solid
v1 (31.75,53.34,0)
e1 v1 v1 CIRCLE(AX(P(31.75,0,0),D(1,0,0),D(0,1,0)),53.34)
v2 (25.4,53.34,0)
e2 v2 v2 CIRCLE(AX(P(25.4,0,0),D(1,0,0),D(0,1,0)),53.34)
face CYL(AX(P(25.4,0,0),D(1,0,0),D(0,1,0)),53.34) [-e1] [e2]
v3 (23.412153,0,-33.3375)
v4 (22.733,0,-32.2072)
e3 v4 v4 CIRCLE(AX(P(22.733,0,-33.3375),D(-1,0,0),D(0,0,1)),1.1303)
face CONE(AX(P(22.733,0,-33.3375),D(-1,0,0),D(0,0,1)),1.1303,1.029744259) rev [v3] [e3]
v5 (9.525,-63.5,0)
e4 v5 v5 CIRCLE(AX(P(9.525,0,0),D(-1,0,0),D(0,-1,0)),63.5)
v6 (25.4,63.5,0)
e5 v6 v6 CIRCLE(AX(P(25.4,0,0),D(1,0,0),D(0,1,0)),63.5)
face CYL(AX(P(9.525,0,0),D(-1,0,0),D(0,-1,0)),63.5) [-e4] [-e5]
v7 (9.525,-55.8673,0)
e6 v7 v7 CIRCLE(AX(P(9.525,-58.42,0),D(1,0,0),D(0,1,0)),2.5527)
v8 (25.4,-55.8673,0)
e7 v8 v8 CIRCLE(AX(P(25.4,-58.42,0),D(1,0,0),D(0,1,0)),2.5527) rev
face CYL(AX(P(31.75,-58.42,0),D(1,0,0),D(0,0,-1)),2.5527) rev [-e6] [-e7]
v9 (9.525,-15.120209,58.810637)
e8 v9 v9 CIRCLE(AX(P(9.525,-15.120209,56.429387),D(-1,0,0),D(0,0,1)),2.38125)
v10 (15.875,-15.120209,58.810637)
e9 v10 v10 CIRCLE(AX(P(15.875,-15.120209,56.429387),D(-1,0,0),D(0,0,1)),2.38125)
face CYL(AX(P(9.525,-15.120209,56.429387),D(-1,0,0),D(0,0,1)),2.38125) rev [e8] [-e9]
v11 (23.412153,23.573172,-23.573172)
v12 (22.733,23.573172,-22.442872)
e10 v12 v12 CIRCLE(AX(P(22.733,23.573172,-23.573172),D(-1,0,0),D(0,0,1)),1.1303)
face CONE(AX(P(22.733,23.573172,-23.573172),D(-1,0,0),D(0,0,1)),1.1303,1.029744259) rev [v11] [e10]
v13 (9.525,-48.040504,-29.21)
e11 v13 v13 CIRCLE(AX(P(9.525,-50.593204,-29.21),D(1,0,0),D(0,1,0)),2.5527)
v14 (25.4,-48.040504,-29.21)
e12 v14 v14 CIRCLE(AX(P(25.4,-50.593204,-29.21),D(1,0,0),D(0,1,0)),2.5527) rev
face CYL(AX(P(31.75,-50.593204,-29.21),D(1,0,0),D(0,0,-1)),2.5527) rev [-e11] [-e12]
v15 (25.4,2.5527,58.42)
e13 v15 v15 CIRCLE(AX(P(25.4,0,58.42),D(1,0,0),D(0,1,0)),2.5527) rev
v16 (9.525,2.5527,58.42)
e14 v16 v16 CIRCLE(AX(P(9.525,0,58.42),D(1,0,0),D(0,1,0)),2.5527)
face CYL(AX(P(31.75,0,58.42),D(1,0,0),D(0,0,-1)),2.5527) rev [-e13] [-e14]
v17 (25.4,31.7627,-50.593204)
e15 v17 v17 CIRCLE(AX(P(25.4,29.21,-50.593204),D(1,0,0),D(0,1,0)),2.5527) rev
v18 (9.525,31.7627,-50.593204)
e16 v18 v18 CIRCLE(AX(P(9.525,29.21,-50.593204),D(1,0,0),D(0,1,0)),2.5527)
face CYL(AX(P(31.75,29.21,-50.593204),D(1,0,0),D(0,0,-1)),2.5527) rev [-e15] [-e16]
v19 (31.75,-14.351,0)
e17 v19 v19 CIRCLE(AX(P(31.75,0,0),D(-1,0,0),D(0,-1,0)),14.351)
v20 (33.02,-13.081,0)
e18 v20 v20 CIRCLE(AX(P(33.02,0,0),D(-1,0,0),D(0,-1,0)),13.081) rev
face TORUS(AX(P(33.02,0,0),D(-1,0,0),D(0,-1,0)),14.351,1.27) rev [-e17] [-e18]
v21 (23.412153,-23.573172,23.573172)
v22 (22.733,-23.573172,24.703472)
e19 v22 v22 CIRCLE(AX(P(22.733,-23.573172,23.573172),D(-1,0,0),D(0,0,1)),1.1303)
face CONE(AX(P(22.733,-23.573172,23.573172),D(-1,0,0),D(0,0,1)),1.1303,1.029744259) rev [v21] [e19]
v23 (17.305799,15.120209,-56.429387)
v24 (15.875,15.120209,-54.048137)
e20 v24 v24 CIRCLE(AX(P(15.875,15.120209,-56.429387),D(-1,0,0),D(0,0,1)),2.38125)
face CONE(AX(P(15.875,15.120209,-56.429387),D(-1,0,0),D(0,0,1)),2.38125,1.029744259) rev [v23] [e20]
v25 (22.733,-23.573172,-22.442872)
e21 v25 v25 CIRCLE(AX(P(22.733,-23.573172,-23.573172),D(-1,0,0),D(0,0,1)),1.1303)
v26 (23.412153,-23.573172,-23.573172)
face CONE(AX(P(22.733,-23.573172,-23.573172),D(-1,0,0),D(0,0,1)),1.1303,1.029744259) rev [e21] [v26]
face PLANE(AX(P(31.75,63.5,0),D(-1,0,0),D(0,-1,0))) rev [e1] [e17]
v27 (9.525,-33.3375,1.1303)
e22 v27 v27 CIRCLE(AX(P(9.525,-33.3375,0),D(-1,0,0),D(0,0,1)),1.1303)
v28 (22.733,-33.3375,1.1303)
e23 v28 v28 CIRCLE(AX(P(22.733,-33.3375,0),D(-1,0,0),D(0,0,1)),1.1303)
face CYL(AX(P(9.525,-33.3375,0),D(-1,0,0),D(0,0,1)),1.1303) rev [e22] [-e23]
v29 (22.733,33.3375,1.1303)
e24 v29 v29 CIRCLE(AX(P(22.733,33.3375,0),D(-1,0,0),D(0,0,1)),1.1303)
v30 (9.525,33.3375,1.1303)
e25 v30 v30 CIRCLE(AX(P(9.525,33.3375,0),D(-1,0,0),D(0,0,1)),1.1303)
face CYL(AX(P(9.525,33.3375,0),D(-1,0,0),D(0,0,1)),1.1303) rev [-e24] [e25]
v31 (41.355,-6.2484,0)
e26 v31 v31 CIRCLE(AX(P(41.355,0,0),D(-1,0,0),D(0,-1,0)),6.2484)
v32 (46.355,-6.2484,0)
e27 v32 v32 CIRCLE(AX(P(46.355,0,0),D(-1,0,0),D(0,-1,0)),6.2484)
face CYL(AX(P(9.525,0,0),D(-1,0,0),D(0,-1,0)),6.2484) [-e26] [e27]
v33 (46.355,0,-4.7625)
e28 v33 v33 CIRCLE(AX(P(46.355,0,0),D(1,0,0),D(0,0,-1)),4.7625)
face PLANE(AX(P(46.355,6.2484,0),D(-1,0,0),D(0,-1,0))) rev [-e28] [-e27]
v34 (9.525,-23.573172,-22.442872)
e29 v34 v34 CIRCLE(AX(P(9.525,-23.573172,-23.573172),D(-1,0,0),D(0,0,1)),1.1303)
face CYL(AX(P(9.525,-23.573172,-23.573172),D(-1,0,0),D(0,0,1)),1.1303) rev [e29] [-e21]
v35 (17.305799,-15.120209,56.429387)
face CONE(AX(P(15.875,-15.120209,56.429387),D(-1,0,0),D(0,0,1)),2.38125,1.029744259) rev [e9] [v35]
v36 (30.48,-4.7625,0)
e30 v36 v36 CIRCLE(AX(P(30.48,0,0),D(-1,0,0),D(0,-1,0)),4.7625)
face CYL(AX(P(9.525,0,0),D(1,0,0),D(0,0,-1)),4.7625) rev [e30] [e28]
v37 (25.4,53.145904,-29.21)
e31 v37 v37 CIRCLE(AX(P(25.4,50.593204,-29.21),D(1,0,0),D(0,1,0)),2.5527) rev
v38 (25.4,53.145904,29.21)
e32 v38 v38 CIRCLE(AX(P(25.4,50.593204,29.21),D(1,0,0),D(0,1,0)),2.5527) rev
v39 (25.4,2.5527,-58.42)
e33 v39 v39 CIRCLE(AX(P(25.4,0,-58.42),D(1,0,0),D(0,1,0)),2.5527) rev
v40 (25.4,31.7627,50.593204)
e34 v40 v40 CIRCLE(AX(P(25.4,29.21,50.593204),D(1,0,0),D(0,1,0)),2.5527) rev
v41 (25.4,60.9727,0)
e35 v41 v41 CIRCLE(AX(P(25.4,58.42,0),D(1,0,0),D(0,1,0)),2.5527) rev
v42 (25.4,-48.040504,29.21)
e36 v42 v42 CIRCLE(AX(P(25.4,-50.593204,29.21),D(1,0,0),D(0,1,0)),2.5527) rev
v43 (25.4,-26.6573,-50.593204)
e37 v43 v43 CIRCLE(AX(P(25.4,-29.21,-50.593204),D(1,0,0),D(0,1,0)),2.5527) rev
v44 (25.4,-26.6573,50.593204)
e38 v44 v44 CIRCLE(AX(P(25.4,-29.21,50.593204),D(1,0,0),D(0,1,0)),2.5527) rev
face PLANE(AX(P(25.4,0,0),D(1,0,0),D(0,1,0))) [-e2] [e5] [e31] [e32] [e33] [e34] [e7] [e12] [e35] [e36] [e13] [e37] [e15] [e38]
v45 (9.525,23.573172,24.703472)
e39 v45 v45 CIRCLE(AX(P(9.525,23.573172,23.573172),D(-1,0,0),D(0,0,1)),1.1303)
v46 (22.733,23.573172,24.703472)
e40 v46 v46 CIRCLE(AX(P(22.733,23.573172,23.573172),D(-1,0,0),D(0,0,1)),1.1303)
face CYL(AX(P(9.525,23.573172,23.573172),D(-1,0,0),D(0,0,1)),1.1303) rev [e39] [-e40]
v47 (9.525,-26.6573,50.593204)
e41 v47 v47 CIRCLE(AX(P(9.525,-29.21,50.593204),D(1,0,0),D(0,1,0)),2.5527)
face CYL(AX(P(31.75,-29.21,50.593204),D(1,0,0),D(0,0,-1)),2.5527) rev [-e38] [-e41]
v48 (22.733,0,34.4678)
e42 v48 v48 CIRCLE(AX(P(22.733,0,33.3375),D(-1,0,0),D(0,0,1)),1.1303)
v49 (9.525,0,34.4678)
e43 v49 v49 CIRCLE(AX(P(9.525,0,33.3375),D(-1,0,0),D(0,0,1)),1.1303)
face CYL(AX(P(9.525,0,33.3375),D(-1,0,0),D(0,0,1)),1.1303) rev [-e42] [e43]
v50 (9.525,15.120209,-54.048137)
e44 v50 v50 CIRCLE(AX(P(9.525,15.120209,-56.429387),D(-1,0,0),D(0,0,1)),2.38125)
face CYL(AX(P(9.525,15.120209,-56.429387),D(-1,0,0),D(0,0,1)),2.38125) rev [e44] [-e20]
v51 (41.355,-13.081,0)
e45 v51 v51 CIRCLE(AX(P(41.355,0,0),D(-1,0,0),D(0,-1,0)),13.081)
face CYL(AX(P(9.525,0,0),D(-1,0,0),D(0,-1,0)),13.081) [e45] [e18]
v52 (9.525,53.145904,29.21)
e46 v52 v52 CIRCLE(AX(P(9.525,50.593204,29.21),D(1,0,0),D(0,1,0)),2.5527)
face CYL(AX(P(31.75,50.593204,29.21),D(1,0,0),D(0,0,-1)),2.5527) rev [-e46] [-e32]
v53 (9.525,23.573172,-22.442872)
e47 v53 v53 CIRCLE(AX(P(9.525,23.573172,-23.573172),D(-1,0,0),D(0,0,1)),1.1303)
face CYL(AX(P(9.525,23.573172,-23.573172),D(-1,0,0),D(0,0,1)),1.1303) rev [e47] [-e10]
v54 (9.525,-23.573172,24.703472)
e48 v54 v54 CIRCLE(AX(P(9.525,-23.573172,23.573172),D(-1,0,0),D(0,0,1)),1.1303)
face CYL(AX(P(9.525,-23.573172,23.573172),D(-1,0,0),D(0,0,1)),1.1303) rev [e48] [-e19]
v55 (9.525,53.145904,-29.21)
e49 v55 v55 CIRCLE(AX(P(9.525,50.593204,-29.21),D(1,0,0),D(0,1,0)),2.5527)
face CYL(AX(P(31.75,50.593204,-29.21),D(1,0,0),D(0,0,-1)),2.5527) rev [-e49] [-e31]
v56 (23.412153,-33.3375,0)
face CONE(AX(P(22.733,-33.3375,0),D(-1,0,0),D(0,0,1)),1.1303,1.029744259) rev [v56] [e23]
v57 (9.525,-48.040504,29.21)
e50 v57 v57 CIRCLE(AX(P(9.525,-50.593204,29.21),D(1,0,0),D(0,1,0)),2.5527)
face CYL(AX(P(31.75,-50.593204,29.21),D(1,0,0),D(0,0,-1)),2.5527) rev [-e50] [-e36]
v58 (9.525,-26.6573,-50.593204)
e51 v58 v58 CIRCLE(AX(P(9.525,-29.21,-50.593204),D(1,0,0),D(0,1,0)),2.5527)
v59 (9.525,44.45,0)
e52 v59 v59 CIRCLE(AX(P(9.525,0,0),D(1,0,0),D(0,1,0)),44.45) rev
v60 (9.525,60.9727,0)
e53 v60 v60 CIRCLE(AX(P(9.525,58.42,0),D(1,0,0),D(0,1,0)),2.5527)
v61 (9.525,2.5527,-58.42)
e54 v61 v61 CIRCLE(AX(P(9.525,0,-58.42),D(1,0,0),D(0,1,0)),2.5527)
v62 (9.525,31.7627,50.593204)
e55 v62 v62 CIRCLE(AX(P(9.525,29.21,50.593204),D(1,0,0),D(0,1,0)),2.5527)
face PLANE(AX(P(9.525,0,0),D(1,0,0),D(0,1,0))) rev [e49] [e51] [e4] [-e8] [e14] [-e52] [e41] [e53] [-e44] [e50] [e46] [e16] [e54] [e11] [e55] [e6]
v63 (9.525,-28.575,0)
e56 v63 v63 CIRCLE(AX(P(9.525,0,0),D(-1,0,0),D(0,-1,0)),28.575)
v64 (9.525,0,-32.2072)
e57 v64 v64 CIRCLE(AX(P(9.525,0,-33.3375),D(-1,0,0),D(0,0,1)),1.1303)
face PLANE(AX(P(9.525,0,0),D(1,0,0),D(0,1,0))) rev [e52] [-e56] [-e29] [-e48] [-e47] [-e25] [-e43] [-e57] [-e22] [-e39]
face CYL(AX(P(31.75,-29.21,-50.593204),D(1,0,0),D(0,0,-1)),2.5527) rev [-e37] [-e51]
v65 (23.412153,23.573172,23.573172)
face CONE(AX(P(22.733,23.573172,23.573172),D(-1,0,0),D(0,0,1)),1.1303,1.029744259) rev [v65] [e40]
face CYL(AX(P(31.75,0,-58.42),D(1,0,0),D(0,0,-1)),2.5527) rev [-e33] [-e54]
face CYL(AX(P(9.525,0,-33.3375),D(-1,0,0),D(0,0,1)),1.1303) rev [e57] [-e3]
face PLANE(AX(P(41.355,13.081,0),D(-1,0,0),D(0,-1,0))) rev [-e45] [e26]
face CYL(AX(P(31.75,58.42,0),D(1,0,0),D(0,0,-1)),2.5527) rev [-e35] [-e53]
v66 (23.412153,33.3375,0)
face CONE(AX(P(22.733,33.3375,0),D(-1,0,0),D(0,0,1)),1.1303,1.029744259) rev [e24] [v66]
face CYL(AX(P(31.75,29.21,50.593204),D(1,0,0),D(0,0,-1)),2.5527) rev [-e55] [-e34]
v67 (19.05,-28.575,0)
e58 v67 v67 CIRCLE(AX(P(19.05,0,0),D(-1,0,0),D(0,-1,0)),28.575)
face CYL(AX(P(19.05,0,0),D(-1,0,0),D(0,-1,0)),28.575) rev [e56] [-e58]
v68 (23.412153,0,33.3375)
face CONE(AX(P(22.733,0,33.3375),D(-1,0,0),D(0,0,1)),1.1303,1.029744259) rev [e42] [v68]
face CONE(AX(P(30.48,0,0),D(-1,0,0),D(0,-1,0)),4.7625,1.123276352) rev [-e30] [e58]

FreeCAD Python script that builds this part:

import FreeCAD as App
import Part
import Sketcher
Q = App.Units.Quantity


def edges_at(feature, points):
    """Names of the edges that pass closest to the given points."""
    edges = feature.Shape.Edges
    near = lambda p: min(range(len(edges)), key=lambda i: edges[i].distToShape(Part.Vertex(*p))[0])
    return sorted({f"Edge{near(p) + 1}" for p in points})

doc = App.newDocument("Part")
body = doc.addObject("PartDesign::Body", "Body")

# Sketch on XY plane
sketch1 = body.newObject("Sketcher::SketchObject", "Sketch")
sketch1.AttachmentSupport = (doc.getObject("XY_Plane"), [""])
sketch1.MapMode = "FlatFace"
sketch1.addGeometry([
    Part.LineSegment(App.Vector(41, 6, 0), App.Vector(41, 13, 0)),  # 0
    Part.LineSegment(App.Vector(41, 13, 0), App.Vector(32, 13, 0)),  # 1
    Part.LineSegment(App.Vector(32, 13, 0), App.Vector(32, 64, 0)),  # 2
    Part.LineSegment(App.Vector(32, 64, 0), App.Vector(10, 64, 0)),  # 3
    Part.LineSegment(App.Vector(10, 64, 0), App.Vector(10, 0, 0)),  # 4
    Part.LineSegment(App.Vector(10, 0, 0), App.Vector(46, 0, 0)),  # 5
    Part.LineSegment(App.Vector(46, 0, 0), App.Vector(46, 6, 0)),  # 6
    Part.LineSegment(App.Vector(46, 6, 0), App.Vector(41, 6, 0)),  # 7
], False)
sketch1.addConstraint([
    Sketcher.Constraint("Coincident", 0, 2, 1, 1),
    Sketcher.Constraint("Coincident", 1, 2, 2, 1),
    Sketcher.Constraint("Coincident", 2, 2, 3, 1),
    Sketcher.Constraint("Coincident", 3, 2, 4, 1),
    Sketcher.Constraint("Coincident", 4, 2, 5, 1),
    Sketcher.Constraint("Coincident", 5, 2, 6, 1),
    Sketcher.Constraint("Coincident", 6, 2, 7, 1),
    Sketcher.Constraint("Coincident", 7, 2, 0, 1),
    Sketcher.Constraint("Vertical", 0),
    Sketcher.Constraint("Horizontal", 1),
    Sketcher.Constraint("Vertical", 2),
    Sketcher.Constraint("Horizontal", 3),
    Sketcher.Constraint("Vertical", 4),
    Sketcher.Constraint("Horizontal", 5),
    Sketcher.Constraint("Vertical", 6),
    Sketcher.Constraint("Horizontal", 7),
    Sketcher.Constraint("PointOnObject", 4, 2, -1),
    Sketcher.Constraint("DistanceY", 4, 2, 4, 1, Q("2.5 in")),
    Sketcher.Constraint("DistanceX", 5, 1, 5, 2, Q("1.45 in")),
    Sketcher.Constraint("DistanceX", 3, 2, 3, 1, Q("0.875 in")),
    Sketcher.Constraint("DistanceY", 0, 1, 0, 2, Q("0.269 in")),
    Sketcher.Constraint("DistanceY", 2, 1, 2, 2, Q("1.985 in")),
    Sketcher.Constraint("DistanceX", -1, 1, 1, 2, Q("1.25 in")),
    Sketcher.Constraint("DistanceX", 1, 2, 1, 1, 9.605),
])
revolution = body.newObject("PartDesign::Revolution", "Revolution")
revolution.Profile = sketch1
revolution.ReferenceAxis = (sketch1, ["H_Axis"])
revolution.Angle = 360

# Sketch on YZ plane
sketch2 = body.newObject("Sketcher::SketchObject", "Sketch001")
sketch2.AttachmentSupport = (doc.getObject("YZ_Plane"), [""])
sketch2.MapMode = "FlatFace"
sketch2.AttachmentOffset = App.Placement(App.Vector(0, 0, 1.825 * 25.4), App.Rotation())
sketch2.addGeometry(Part.Circle(App.Vector(0, 0, 0), App.Vector(0, 0, 1), 4.8), False)
sketch2.addConstraint([
    Sketcher.Constraint("Coincident", 0, 3, -1, 1),
    Sketcher.Constraint("Diameter", 0, Q("0.375 in")),
])
pocket1 = body.newObject("PartDesign::Pocket", "Pocket")
pocket1.Profile = sketch2
pocket1.Type = "ThroughAll"

# Sketch on YZ plane
sketch3 = body.newObject("Sketcher::SketchObject", "Sketch002")
sketch3.AttachmentSupport = (doc.getObject("YZ_Plane"), [""])
sketch3.MapMode = "FlatFace"
sketch3.AttachmentOffset = App.Placement(App.Vector(0, 0, 1.25 * 25.4), App.Rotation())
sketch3.addGeometry([
    Part.Circle(App.Vector(-58.4, 0, 0), App.Vector(0, 0, 1), 2.6),  # 0
    Part.Circle(App.Vector(-50.6, -29.2, 0), App.Vector(0, 0, 1), 2.6),  # 1
    Part.Circle(App.Vector(-29.2, -50.6, 0), App.Vector(0, 0, 1), 2.6),  # 2
    Part.Circle(App.Vector(0, -58.4, 0), App.Vector(0, 0, 1), 2.6),  # 3
    Part.Circle(App.Vector(29.2, -50.6, 0), App.Vector(0, 0, 1), 2.6),  # 4
    Part.Circle(App.Vector(50.6, -29.2, 0), App.Vector(0, 0, 1), 2.6),  # 5
    Part.Circle(App.Vector(58.4, 0, 0), App.Vector(0, 0, 1), 2.6),  # 6
    Part.Circle(App.Vector(50.6, 29.2, 0), App.Vector(0, 0, 1), 2.6),  # 7
    Part.Circle(App.Vector(29.2, 50.6, 0), App.Vector(0, 0, 1), 2.6),  # 8
    Part.Circle(App.Vector(0, 58.4, 0), App.Vector(0, 0, 1), 2.6),  # 9
    Part.Circle(App.Vector(-29.2, 50.6, 0), App.Vector(0, 0, 1), 2.6),  # 10
    Part.Circle(App.Vector(-50.6, 29.2, 0), App.Vector(0, 0, 1), 2.6),  # 11
], False)
sketch3.addConstraint([
    Sketcher.Constraint("Equal", 0, 1),
    Sketcher.Constraint("Equal", 1, 2),
    Sketcher.Constraint("Equal", 2, 3),
    Sketcher.Constraint("Equal", 3, 4),
    Sketcher.Constraint("Equal", 4, 5),
    Sketcher.Constraint("Equal", 5, 6),
    Sketcher.Constraint("Equal", 6, 7),
    Sketcher.Constraint("Equal", 7, 8),
    Sketcher.Constraint("Equal", 8, 9),
    Sketcher.Constraint("Equal", 9, 10),
    Sketcher.Constraint("Equal", 10, 11),
    Sketcher.Constraint("Symmetric", 0, 3, 6, 3, -1, 1),
    Sketcher.Constraint("Symmetric", 1, 3, 7, 3, -1, 1),
    Sketcher.Constraint("Symmetric", 2, 3, 8, 3, -1, 1),
    Sketcher.Constraint("Symmetric", 3, 3, 9, 3, -1, 1),
    Sketcher.Constraint("Symmetric", 4, 3, 10, 3, -1, 1),
    Sketcher.Constraint("Symmetric", 5, 3, 11, 3, -1, 1),
    Sketcher.Constraint("Symmetric", 2, 3, 4, 3, -2),
    Sketcher.Constraint("Symmetric", 1, 3, 5, 3, -2),
    Sketcher.Constraint("PointOnObject", 0, 3, -1),
    Sketcher.Constraint("PointOnObject", 3, 3, -2),
    Sketcher.Constraint("Diameter", 0, Q("0.201 in")),
    Sketcher.Constraint("DistanceX", 0, 3, -1, 1, Q("2.3 in")),
    Sketcher.Constraint("DistanceY", 3, 3, -1, 1, Q("2.3 in")),
    Sketcher.Constraint("DistanceX", 2, 3, 4, 3, Q("2.3 in")),
    Sketcher.Constraint("DistanceY", 5, 3, 7, 3, Q("2.3 in")),
    Sketcher.Constraint("DistanceX", 1, 3, 5, 3, 101.186408),
    Sketcher.Constraint("DistanceY", 4, 3, 8, 3, 101.186408),
])
doc.recompute()
hole = body.newObject("PartDesign::Hole", "Hole")
hole.Profile = sketch3
hole.ThreadType = "None"
hole.Diameter = Q("0.201 in")
hole.DepthType = "Dimension"
hole.Depth = Q("0.875 in")
hole.DrillPoint = "Flat"

# Sketch on YZ plane
sketch4 = body.newObject("Sketcher::SketchObject", "Sketch003")
sketch4.AttachmentSupport = (doc.getObject("YZ_Plane"), [""])
sketch4.MapMode = "FlatFace"
sketch4.AttachmentOffset = App.Placement(App.Vector(0, 0, 0.375 * 25.4), App.Rotation())
sketch4.addGeometry([
    Part.Circle(App.Vector(-15.1, 56.4, 0), App.Vector(0, 0, 1), 2.4),
    Part.Circle(App.Vector(15.1, -56.4, 0), App.Vector(0, 0, 1), 2.4),
], False)
sketch4.addConstraint([
    Sketcher.Constraint("Equal", 0, 1),
    Sketcher.Constraint("Symmetric", 0, 3, 1, 3, -1, 1),
    Sketcher.Constraint("Diameter", 0, Q("0.1875 in")),
    Sketcher.Constraint("DistanceX", 0, 3, -1, 1, 15.120209),
    Sketcher.Constraint("DistanceY", -1, 1, 0, 3, 56.429387),
])
doc.recompute()
hole2 = body.newObject("PartDesign::Hole", "Hole001")
hole2.Profile = sketch4
hole2.ThreadType = "None"
hole2.Diameter = Q("0.1875 in")
hole2.DepthType = "Dimension"
hole2.Depth = Q("0.25 in")
hole2.DrillPoint = "Angled"
hole2.DrillPointAngle = 118
hole2.Reversed = True

# Sketch on YZ plane
sketch5 = body.newObject("Sketcher::SketchObject", "Sketch004")
sketch5.AttachmentSupport = (doc.getObject("YZ_Plane"), [""])
sketch5.MapMode = "FlatFace"
sketch5.AttachmentOffset = App.Placement(App.Vector(0, 0, 0.375 * 25.4), App.Rotation())
sketch5.addGeometry(Part.Circle(App.Vector(0, 0, 0), App.Vector(0, 0, 1), 29), False)
sketch5.addConstraint([
    Sketcher.Constraint("Coincident", 0, 3, -1, 1),
    Sketcher.Constraint("Diameter", 0, Q("2.25 in")),
])
pocket2 = body.newObject("PartDesign::Pocket", "Pocket001")
pocket2.Profile = sketch5
pocket2.Length = Q("0.375 in")
pocket2.Reversed = True

# Sketch on YZ plane
sketch6 = body.newObject("Sketcher::SketchObject", "Sketch005")
sketch6.AttachmentSupport = (doc.getObject("YZ_Plane"), [""])
sketch6.MapMode = "FlatFace"
sketch6.AttachmentOffset = App.Placement(App.Vector(0, 0, 0.75 * 25.4), App.Rotation())
sketch6.addGeometry(Part.Circle(App.Vector(0, 0, 0), App.Vector(0, 0, 1), 29), False)
sketch6.addConstraint([
    Sketcher.Constraint("Coincident", 0, 3, -1, 1),
    Sketcher.Constraint("Diameter", 0, Q("2.25 in")),
])

# Sketch on YZ plane
sketch7 = body.newObject("Sketcher::SketchObject", "Sketch006")
sketch7.AttachmentSupport = (doc.getObject("YZ_Plane"), [""])
sketch7.MapMode = "FlatFace"
sketch7.AttachmentOffset = App.Placement(App.Vector(0, 0, 1.2 * 25.4), App.Rotation())
sketch7.addGeometry(Part.Circle(App.Vector(0, 0, 0), App.Vector(0, 0, 1), 4.8), False)
sketch7.addConstraint([
    Sketcher.Constraint("Coincident", 0, 3, -1, 1),
    Sketcher.Constraint("Diameter", 0, Q("0.375 in")),
])

subtractiveloft = body.newObject("PartDesign::SubtractiveLoft", "SubtractiveLoft")
subtractiveloft.Profile = sketch6
subtractiveloft.Sections = [sketch7]

# Sketch on XZ plane
sketch8 = body.newObject("Sketcher::SketchObject", "Sketch007")
sketch8.AttachmentSupport = (doc.getObject("XZ_Plane"), [""])
sketch8.MapMode = "FlatFace"
sketch8.addGeometry([
    Part.LineSegment(App.Vector(23.4, 33.3, 0), App.Vector(9.5, 33.3, 0)),
    Part.LineSegment(App.Vector(9.5, 33.3, 0), App.Vector(9.5, 34.5, 0)),
    Part.LineSegment(App.Vector(9.5, 34.5, 0), App.Vector(22.7, 34.5, 0)),
    Part.LineSegment(App.Vector(22.7, 34.5, 0), App.Vector(23.4, 33.3, 0)),
], False)
sketch8.addGeometry(Part.LineSegment(App.Vector(9.5, 33.3, 0), App.Vector(23.4, 33.3, 0)), True)  # axis
sketch8.addConstraint([
    Sketcher.Constraint("Coincident", 0, 2, 1, 1),
    Sketcher.Constraint("Coincident", 1, 2, 2, 1),
    Sketcher.Constraint("Coincident", 2, 2, 3, 1),
    Sketcher.Constraint("Coincident", 3, 2, 0, 1),
    Sketcher.Constraint("Horizontal", 0),
    Sketcher.Constraint("Vertical", 1),
    Sketcher.Constraint("Horizontal", 2),
    Sketcher.Constraint("Horizontal", 4),
    Sketcher.Constraint("Coincident", 4, 1, 0, 2),
    Sketcher.Constraint("Equal", 0, 4),
    Sketcher.Constraint("Angle", 3, Q("-59 deg")),
    Sketcher.Constraint("DistanceX", 2, 1, 2, 2, Q("0.52 in")),
    Sketcher.Constraint("DistanceY", 1, 1, 1, 2, Q("0.0445 in")),
    Sketcher.Constraint("DistanceX", -1, 1, 0, 2, Q("0.375 in")),
    Sketcher.Constraint("DistanceY", -1, 1, 0, 2, Q("1.3125 in")),
])
groove = body.newObject("PartDesign::Groove", "Groove")
groove.Profile = sketch8
groove.ReferenceAxis = (sketch8, ["Axis0"])
groove.Angle = 360
doc.recompute()

polarpattern = body.newObject("PartDesign::PolarPattern", "PolarPattern")
polarpattern.Originals = [groove]
polarpattern.Axis = (doc.getObject("X_Axis"), [""])
polarpattern.Angle = 360
polarpattern.Occurrences = 8
body.Tip = polarpattern
doc.recompute()

fillet = body.newObject("PartDesign::Fillet", "Fillet")
fillet.Base = (polarpattern, edges_at(polarpattern, [(31.75, -13.081, 0)]))
fillet.Radius = Q("0.05 in")

# Sketch on YZ plane
sketch9 = body.newObject("Sketcher::SketchObject", "Sketch008")
sketch9.AttachmentSupport = (doc.getObject("YZ_Plane"), [""])
sketch9.MapMode = "FlatFace"
sketch9.AttachmentOffset = App.Placement(App.Vector(0, 0, 1.25 * 25.4), App.Rotation())
sketch9.addGeometry([
    Part.LineSegment(App.Vector(83, 83, 0), App.Vector(-83, 83, 0)),  # 0
    Part.LineSegment(App.Vector(-83, 83, 0), App.Vector(-83, -83, 0)),  # 1
    Part.LineSegment(App.Vector(-83, -83, 0), App.Vector(83, -83, 0)),  # 2
    Part.LineSegment(App.Vector(83, -83, 0), App.Vector(83, 83, 0)),  # 3
    Part.Circle(App.Vector(0, 0, 0), App.Vector(0, 0, 1), 53),  # 4
], False)
sketch9.addConstraint([
    Sketcher.Constraint("Coincident", 0, 2, 1, 1),
    Sketcher.Constraint("Coincident", 1, 2, 2, 1),
    Sketcher.Constraint("Coincident", 2, 2, 3, 1),
    Sketcher.Constraint("Coincident", 3, 2, 0, 1),
    Sketcher.Constraint("Horizontal", 0),
    Sketcher.Constraint("Vertical", 1),
    Sketcher.Constraint("Horizontal", 2),
    Sketcher.Constraint("Vertical", 3),
    Sketcher.Constraint("Coincident", 4, 3, -1, 1),
    Sketcher.Constraint("Symmetric", 0, 2, 2, 2, -1, 1),
    Sketcher.Constraint("Equal", 2, 1),
    Sketcher.Constraint("Diameter", 4, Q("4.2 in")),
    Sketcher.Constraint("DistanceX", 0, 2, 0, 1, 165.668),
])
pocket3 = body.newObject("PartDesign::Pocket", "Pocket002")
pocket3.Profile = sketch9
pocket3.Length = Q("0.25 in")

doc.recompute()
